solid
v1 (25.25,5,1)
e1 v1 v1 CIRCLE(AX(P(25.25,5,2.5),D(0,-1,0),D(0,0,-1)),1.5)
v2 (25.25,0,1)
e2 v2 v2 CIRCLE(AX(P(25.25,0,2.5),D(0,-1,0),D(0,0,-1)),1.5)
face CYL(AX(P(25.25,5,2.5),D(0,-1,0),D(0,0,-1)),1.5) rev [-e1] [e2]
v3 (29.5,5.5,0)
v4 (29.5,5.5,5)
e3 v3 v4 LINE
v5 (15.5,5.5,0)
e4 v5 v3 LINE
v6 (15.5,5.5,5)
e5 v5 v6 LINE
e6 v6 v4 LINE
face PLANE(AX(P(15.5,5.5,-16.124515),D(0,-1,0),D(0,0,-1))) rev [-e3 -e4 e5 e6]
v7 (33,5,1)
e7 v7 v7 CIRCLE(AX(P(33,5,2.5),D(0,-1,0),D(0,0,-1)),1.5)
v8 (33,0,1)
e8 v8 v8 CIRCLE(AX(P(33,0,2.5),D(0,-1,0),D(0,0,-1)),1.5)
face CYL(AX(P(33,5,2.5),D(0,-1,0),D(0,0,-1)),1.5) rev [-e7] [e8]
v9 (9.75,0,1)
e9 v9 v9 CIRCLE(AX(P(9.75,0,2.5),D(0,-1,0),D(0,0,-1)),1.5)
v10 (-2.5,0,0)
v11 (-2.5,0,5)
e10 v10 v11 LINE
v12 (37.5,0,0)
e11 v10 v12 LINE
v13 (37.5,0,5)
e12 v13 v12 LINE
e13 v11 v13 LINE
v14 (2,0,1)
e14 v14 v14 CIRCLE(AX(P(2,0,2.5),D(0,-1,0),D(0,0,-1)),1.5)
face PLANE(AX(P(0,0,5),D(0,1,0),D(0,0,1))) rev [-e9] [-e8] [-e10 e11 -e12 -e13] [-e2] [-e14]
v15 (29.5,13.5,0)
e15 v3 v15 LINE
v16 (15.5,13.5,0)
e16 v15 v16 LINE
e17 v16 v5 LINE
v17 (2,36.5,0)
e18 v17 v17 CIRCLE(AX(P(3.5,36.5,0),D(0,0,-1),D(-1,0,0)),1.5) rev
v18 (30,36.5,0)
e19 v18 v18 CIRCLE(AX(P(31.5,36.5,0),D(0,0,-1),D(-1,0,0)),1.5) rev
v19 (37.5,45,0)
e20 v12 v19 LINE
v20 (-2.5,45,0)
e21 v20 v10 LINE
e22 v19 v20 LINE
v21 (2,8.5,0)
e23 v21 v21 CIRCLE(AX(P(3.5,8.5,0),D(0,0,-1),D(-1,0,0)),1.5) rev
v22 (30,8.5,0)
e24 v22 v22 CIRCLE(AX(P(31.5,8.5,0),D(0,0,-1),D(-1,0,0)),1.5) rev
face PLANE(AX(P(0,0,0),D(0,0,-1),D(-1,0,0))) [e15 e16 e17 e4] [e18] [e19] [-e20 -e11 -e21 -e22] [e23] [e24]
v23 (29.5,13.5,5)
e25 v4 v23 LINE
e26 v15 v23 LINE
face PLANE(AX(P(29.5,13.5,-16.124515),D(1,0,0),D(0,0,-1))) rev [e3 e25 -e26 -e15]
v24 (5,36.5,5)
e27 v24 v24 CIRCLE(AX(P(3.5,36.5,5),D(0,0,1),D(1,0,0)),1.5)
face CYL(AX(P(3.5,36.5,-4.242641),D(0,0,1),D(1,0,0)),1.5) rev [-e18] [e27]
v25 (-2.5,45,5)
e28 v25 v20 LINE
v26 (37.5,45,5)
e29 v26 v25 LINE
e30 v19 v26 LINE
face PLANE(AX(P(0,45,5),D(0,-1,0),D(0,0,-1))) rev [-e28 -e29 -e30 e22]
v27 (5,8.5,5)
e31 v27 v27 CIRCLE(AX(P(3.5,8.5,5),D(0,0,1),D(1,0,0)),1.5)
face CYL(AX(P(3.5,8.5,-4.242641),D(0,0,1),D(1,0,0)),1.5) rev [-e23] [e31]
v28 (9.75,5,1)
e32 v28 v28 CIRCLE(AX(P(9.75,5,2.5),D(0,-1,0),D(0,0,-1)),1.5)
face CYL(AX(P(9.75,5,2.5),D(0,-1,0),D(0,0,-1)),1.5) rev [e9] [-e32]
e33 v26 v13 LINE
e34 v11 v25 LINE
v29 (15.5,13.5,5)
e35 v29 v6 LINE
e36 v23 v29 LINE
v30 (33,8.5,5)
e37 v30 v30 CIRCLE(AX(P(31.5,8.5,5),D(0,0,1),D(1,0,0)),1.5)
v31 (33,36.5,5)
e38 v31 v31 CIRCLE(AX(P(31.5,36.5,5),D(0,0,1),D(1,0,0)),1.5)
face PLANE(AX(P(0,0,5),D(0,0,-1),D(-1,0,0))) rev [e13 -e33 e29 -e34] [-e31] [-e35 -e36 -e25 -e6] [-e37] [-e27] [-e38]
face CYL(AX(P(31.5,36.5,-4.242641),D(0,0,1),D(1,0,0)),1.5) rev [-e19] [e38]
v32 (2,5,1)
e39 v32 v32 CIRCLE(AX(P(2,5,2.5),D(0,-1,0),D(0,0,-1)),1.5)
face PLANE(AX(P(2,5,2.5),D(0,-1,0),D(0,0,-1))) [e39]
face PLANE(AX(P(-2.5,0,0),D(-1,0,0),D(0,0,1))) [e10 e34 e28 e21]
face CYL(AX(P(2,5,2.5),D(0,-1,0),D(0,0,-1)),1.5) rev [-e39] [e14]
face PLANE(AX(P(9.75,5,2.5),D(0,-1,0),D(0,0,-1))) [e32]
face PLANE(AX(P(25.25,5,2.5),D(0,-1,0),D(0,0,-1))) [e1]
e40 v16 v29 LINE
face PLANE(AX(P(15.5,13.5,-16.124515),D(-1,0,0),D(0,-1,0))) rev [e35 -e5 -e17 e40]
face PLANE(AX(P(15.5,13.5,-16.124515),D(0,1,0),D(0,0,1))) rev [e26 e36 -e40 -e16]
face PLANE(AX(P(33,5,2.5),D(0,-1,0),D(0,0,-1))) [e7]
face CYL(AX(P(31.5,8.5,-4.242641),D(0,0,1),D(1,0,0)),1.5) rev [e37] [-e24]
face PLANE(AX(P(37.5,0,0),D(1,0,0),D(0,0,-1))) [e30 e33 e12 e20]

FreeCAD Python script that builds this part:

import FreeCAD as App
import Part
import Sketcher

V = App.Vector


def add_polygon(sketch, points):
    """Adds a closed chain of lines whose ends are joined by coincident constraints."""
    first, n = sketch.GeometryCount, len(points)
    for a, b in zip(points, points[1:] + points[:1]):
        sketch.addGeometry(Part.LineSegment(App.Vector(*a, 0), App.Vector(*b, 0)), False)
    for i in range(n):
        sketch.addConstraint(Sketcher.Constraint("Coincident", first + i, 2, first + (i + 1) % n, 1))

doc = App.newDocument("Part")
params = doc.addObject("Spreadsheet::Sheet", "Params")
for row, (alias, value) in enumerate([
    ("sketch1_width", "35 mm"),
    ("sketch1_height", "45 mm"),
    ("pad1_length", "5 mm"),
    ("sketch2_diameter", "3 mm"),
    ("pocket1_length", "5 mm"),
    ("sketch3_width", "45 mm"),
    ("sketch3_height", "5 mm"),
    ("pad2_length", "2.5 mm"),
    ("sketch4_width", "45 mm"),
    ("sketch4_height", "5 mm"),
    ("pad3_length", "2.5 mm"),
    ("sketch5_diameter", "3 mm"),
    ("pocket2_length", "5 mm"),
    ("sketch6_width", "14 mm"),
    ("sketch6_height", "8 mm"),
    ("pocket3_length", "5 mm"),
], start=1):
    params.set(f"A{row}", alias)
    params.set(f"B{row}", "=" + value)
    params.setAlias(f"B{row}", alias)

body = doc.addObject("PartDesign::Body", "Body")

# Sketch on XY plane
sketch1 = body.newObject("Sketcher::SketchObject", "Sketch")
sketch1.AttachmentSupport = (doc.getObject("XY_Plane"), [""])
sketch1.MapMode = "FlatFace"
add_polygon(sketch1, [(0, 45), (0, 0), (35, 0), (35, 45)])  # lines 0-3
sketch1.addConstraint(Sketcher.Constraint("Vertical", 0))
sketch1.addConstraint(Sketcher.Constraint("Horizontal", 1))
sketch1.addConstraint(Sketcher.Constraint("Vertical", 2))
sketch1.addConstraint(Sketcher.Constraint("Horizontal", 3))
sketch1.addConstraint(Sketcher.Constraint("Coincident", 0, 2, -1, 1))
sketch1.addConstraint(Sketcher.Constraint("DistanceX", 1, 1, 1, 2, 35.0))
sketch1.addConstraint(Sketcher.Constraint("DistanceY", 0, 2, 0, 1, 45.0))
sketch1.setExpression("Constraints[9]", "Params.sketch1_width")
sketch1.setExpression("Constraints[10]", "Params.sketch1_height")
pad1 = body.newObject("PartDesign::Pad", "Pad")
pad1.Profile = sketch1
pad1.setExpression("Length", "Params.pad1_length")

# Sketch on XZ plane
sketch2 = body.newObject("Sketcher::SketchObject", "Sketch001")
sketch2.AttachmentSupport = (doc.getObject("XZ_Plane"), [""])
sketch2.MapMode = "FlatFace"
sketch2.addGeometry(Part.Circle(V(2, 2.5, 0), V(0, 0, 1), 1.5), False)
sketch2.addGeometry(Part.Circle(V(33, 2.5, 0), V(0, 0, 1), 1.5), False)
sketch2.addGeometry(Part.Circle(V(9.8, 2.5, 0), V(0, 0, 1), 1.5), False)
sketch2.addGeometry(Part.Circle(V(25.2, 2.5, 0), V(0, 0, 1), 1.5), False)
sketch2.addConstraint(Sketcher.Constraint("Equal", 0, 1))
sketch2.addConstraint(Sketcher.Constraint("Equal", 1, 2))
sketch2.addConstraint(Sketcher.Constraint("Equal", 2, 3))
sketch2.addConstraint(Sketcher.Constraint("Horizontal", 0, 3, 1, 3))
sketch2.addConstraint(Sketcher.Constraint("Horizontal", 1, 3, 2, 3))
sketch2.addConstraint(Sketcher.Constraint("Horizontal", 2, 3, 3, 3))
sketch2.addConstraint(Sketcher.Constraint("Diameter", 0, 3.0))
sketch2.addConstraint(Sketcher.Constraint("DistanceX", -1, 1, 0, 3, 2.0))
sketch2.addConstraint(Sketcher.Constraint("DistanceX", -1, 1, 1, 3, 33.0))
sketch2.addConstraint(Sketcher.Constraint("DistanceY", -1, 1, 0, 3, 2.5))
sketch2.addConstraint(Sketcher.Constraint("DistanceX", 2, 3, 3, 3, 15.5))
sketch2.addConstraint(Sketcher.Constraint("DistanceX", -1, 1, 2, 3, 9.75))
sketch2.setExpression("Constraints[6]", "Params.sketch2_diameter")
pocket1 = body.newObject("PartDesign::Pocket", "Pocket")
pocket1.Profile = sketch2
pocket1.setExpression("Length", "Params.pocket1_length")

# Sketch on YZ plane
sketch3 = body.newObject("Sketcher::SketchObject", "Sketch002")
sketch3.AttachmentSupport = (doc.getObject("YZ_Plane"), [""])
sketch3.MapMode = "FlatFace"
sketch3.AttachmentOffset = App.Placement(V(0, 0, 35), App.Rotation())
add_polygon(sketch3, [(45, 5), (0, 5), (0, 0), (45, 0)])  # lines 0-3
sketch3.addConstraint(Sketcher.Constraint("Horizontal", 0))
sketch3.addConstraint(Sketcher.Constraint("Vertical", 1))
sketch3.addConstraint(Sketcher.Constraint("Horizontal", 2))
sketch3.addConstraint(Sketcher.Constraint("Vertical", 3))
sketch3.addConstraint(Sketcher.Constraint("Coincident", 1, 2, -1, 1))
sketch3.addConstraint(Sketcher.Constraint("DistanceX", 0, 2, 0, 1, 45.0))
sketch3.addConstraint(Sketcher.Constraint("DistanceY", 1, 2, 1, 1, 5.0))
sketch3.setExpression("Constraints[9]", "Params.sketch3_width")
sketch3.setExpression("Constraints[10]", "Params.sketch3_height")
pad2 = body.newObject("PartDesign::Pad", "Pad001")
pad2.Profile = sketch3
pad2.setExpression("Length", "Params.pad2_length")

# Sketch on YZ plane
sketch4 = body.newObject("Sketcher::SketchObject", "Sketch003")
sketch4.AttachmentSupport = (doc.getObject("YZ_Plane"), [""])
sketch4.MapMode = "FlatFace"
add_polygon(sketch4, [(45, 0), (0, 0), (0, 5), (45, 5)])  # lines 0-3
sketch4.addConstraint(Sketcher.Constraint("Horizontal", 0))
sketch4.addConstraint(Sketcher.Constraint("Vertical", 1))
sketch4.addConstraint(Sketcher.Constraint("Horizontal", 2))
sketch4.addConstraint(Sketcher.Constraint("Vertical", 3))
sketch4.addConstraint(Sketcher.Constraint("Coincident", 0, 2, -1, 1))
sketch4.addConstraint(Sketcher.Constraint("DistanceX", 0, 2, 0, 1, 45.0))
sketch4.addConstraint(Sketcher.Constraint("DistanceY", 1, 1, 1, 2, 5.0))
sketch4.setExpression("Constraints[9]", "Params.sketch4_width")
sketch4.setExpression("Constraints[10]", "Params.sketch4_height")
pad3 = body.newObject("PartDesign::Pad", "Pad002")
pad3.Profile = sketch4
pad3.setExpression("Length", "Params.pad3_length")
pad3.Reversed = True

# Sketch on XY plane
sketch5 = body.newObject("Sketcher::SketchObject", "Sketch004")
sketch5.AttachmentSupport = (doc.getObject("XY_Plane"), [""])
sketch5.MapMode = "FlatFace"
sketch5.AttachmentOffset = App.Placement(V(0, 0, 5), App.Rotation())
sketch5.addGeometry(Part.Circle(V(3.5, 36.5, 0), V(0, 0, 1), 1.5), False)
sketch5.addGeometry(Part.Circle(V(31.5, 8.5, 0), V(0, 0, 1), 1.5), False)
sketch5.addGeometry(Part.Circle(V(31.5, 36.5, 0), V(0, 0, 1), 1.5), False)
sketch5.addGeometry(Part.Circle(V(3.5, 8.5, 0), V(0, 0, 1), 1.5), False)
sketch5.addConstraint(Sketcher.Constraint("Equal", 0, 1))
sketch5.addConstraint(Sketcher.Constraint("Equal", 1, 2))
sketch5.addConstraint(Sketcher.Constraint("Equal", 2, 3))
sketch5.addConstraint(Sketcher.Constraint("Horizontal", 0, 3, 2, 3))
sketch5.addConstraint(Sketcher.Constraint("Horizontal", 1, 3, 3, 3))
sketch5.addConstraint(Sketcher.Constraint("Vertical", 1, 3, 2, 3))
sketch5.addConstraint(Sketcher.Constraint("Vertical", 0, 3, 3, 3))
sketch5.addConstraint(Sketcher.Constraint("Diameter", 0, 3.0))
sketch5.addConstraint(Sketcher.Constraint("DistanceX", 0, 3, 1, 3, 28.0))
sketch5.addConstraint(Sketcher.Constraint("DistanceY", 1, 3, 0, 3, 28.0))
sketch5.addConstraint(Sketcher.Constraint("DistanceX", -1, 1, 0, 3, 3.5))
sketch5.addConstraint(Sketcher.Constraint("DistanceY", -1, 1, 0, 3, 36.5))
sketch5.setExpression("Constraints[7]", "Params.sketch5_diameter")
pocket2 = body.newObject("PartDesign::Pocket", "Pocket001")
pocket2.Profile = sketch5
pocket2.setExpression("Length", "Params.pocket2_length")

# Sketch on XY plane
sketch6 = body.newObject("Sketcher::SketchObject", "Sketch005")
sketch6.AttachmentSupport = (doc.getObject("XY_Plane"), [""])
sketch6.MapMode = "FlatFace"
sketch6.AttachmentOffset = App.Placement(V(0, 0, 5), App.Rotation())
add_polygon(sketch6, [(16, 14), (16, 6), (30, 6), (30, 14)])  # lines 0-3
sketch6.addConstraint(Sketcher.Constraint("Vertical", 0))
sketch6.addConstraint(Sketcher.Constraint("Horizontal", 1))
sketch6.addConstraint(Sketcher.Constraint("Vertical", 2))
sketch6.addConstraint(Sketcher.Constraint("Horizontal", 3))
sketch6.addConstraint(Sketcher.Constraint("DistanceX", 1, 1, 1, 2, 14.0))
sketch6.addConstraint(Sketcher.Constraint("DistanceY", 0, 2, 0, 1, 8.0))
sketch6.addConstraint(Sketcher.Constraint("DistanceX", -1, 1, 0, 2, 15.5))
sketch6.addConstraint(Sketcher.Constraint("DistanceY", -1, 1, 0, 2, 5.5))
sketch6.setExpression("Constraints[8]", "Params.sketch6_width")
sketch6.setExpression("Constraints[9]", "Params.sketch6_height")
pocket3 = body.newObject("PartDesign::Pocket", "Pocket002")
pocket3.Profile = sketch6
pocket3.setExpression("Length", "Params.pocket3_length")

doc.recompute()
